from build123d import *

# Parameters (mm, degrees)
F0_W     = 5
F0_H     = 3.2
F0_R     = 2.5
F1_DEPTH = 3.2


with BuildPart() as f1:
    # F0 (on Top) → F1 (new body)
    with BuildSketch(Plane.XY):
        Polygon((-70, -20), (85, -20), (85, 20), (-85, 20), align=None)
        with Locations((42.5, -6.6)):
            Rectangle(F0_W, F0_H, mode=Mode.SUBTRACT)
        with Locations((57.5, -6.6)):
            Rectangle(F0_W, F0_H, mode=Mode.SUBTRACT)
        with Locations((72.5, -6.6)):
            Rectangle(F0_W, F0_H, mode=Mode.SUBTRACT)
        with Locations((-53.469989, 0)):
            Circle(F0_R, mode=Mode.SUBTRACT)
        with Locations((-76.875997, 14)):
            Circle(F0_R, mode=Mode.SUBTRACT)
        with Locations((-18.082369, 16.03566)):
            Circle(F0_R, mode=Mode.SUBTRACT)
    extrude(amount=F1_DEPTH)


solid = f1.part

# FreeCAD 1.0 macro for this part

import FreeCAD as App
import Part
import Sketcher

V = App.Vector


def add_polygon(sketch, points):
    """Adds a closed chain of lines whose ends are joined by coincident constraints."""
    first, n = sketch.GeometryCount, len(points)
    for a, b in zip(points, points[1:] + points[:1]):
        sketch.addGeometry(Part.LineSegment(App.Vector(*a, 0), App.Vector(*b, 0)), False)
    for i in range(n):
        sketch.addConstraint(Sketcher.Constraint("Coincident", first + i, 2, first + (i + 1) % n, 1))

doc = App.newDocument("Part")
body = doc.addObject("PartDesign::Body", "Body")

# Sketch on XY plane
sketch1 = body.newObject("Sketcher::SketchObject", "Sketch")
sketch1.AttachmentSupport = (doc.getObject("XY_Plane"), [""])
sketch1.MapMode = "FlatFace"
add_polygon(sketch1, [(-70, -20), (85, -20), (85, 20), (-85, 20)])  # lines 0-3
sketch1.addGeometry(Part.Circle(V(-53.469989, 0, 0), V(0, 0, 1), 2.5), False)  # 4
add_polygon(sketch1, [(45, -8.2), (40, -8.2), (40, -5), (45, -5)])  # lines 5-8
add_polygon(sketch1, [(60, -8.2), (55, -8.2), (55, -5), (60, -5)])  # lines 9-12
add_polygon(sketch1, [(75, -8.2), (70, -8.2), (70, -5), (75, -5)])  # lines 13-16
sketch1.addGeometry(Part.Circle(V(-76.875997, 14, 0), V(0, 0, 1), 2.5), False)  # 17
sketch1.addGeometry(Part.Circle(V(-18.082369, 16.03566, 0), V(0, 0, 1), 2.5), False)  # 18
sketch1.addConstraint([
    Sketcher.Constraint("Horizontal", 0),
    Sketcher.Constraint("Vertical", 1),
    Sketcher.Constraint("Horizontal", 2),
    Sketcher.Constraint("Horizontal", 5),
    Sketcher.Constraint("Vertical", 6),
    Sketcher.Constraint("Horizontal", 7),
    Sketcher.Constraint("Vertical", 8),
    Sketcher.Constraint("Horizontal", 9),
    Sketcher.Constraint("Vertical", 10),
    Sketcher.Constraint("Horizontal", 11),
    Sketcher.Constraint("Vertical", 12),
    Sketcher.Constraint("Horizontal", 13),
    Sketcher.Constraint("Vertical", 14),
    Sketcher.Constraint("Horizontal", 15),
    Sketcher.Constraint("Vertical", 16),
    Sketcher.Constraint("Equal", 4, 17),
    Sketcher.Constraint("Equal", 17, 18),
    Sketcher.Constraint("Symmetric", 0, 2, 2, 2, -1, 1),
    Sketcher.Constraint("PointOnObject", 4, 3, -1),
    Sketcher.Constraint("Horizontal", 8, 2, 9, 2),
    Sketcher.Constraint("Horizontal", 7, 2, 10, 2),
    Sketcher.Constraint("Horizontal", 12, 2, 13, 2),
    Sketcher.Constraint("Horizontal", 11, 2, 14, 2),
    Sketcher.Constraint("Equal", 7, 9),
    Sketcher.Constraint("Equal", 11, 13),
    Sketcher.Constraint("Diameter", 4, 5.0),
    Sketcher.Constraint("DistanceX", 0, 1, 0, 2, 155.0),
    Sketcher.Constraint("DistanceX", 2, 2, 2, 1, 170.0),
    Sketcher.Constraint("DistanceX", 5, 2, 5, 1, 5.0),
    Sketcher.Constraint("DistanceY", 1, 1, 1, 2, 40.0),
    Sketcher.Constraint("DistanceY", 6, 1, 6, 2, 3.2),
    Sketcher.Constraint("DistanceY", -1, 1, 17, 3, 14.0),
    Sketcher.Constraint("DistanceX", -1, 1, 5, 2, 40.0),
    Sketcher.Constraint("DistanceY", 6, 2, -1, 1, 5.0),
    Sketcher.Constraint("DistanceX", -1, 1, 9, 2, 55.0),
    Sketcher.Constraint("DistanceX", -1, 1, 13, 2, 70.0),
    Sketcher.Constraint("DistanceX", 4, 3, -1, 1, 53.469989),
    Sketcher.Constraint("DistanceX", 18, 3, -1, 1, 18.082369),
    Sketcher.Constraint("DistanceY", -1, 1, 18, 3, 16.03566),
    Sketcher.Constraint("DistanceX", 17, 3, 4, 3, 23.406008),
])
pad1 = body.newObject("PartDesign::Pad", "Pad")
pad1.Profile = sketch1
pad1.Length = 3.2

doc.recompute()
